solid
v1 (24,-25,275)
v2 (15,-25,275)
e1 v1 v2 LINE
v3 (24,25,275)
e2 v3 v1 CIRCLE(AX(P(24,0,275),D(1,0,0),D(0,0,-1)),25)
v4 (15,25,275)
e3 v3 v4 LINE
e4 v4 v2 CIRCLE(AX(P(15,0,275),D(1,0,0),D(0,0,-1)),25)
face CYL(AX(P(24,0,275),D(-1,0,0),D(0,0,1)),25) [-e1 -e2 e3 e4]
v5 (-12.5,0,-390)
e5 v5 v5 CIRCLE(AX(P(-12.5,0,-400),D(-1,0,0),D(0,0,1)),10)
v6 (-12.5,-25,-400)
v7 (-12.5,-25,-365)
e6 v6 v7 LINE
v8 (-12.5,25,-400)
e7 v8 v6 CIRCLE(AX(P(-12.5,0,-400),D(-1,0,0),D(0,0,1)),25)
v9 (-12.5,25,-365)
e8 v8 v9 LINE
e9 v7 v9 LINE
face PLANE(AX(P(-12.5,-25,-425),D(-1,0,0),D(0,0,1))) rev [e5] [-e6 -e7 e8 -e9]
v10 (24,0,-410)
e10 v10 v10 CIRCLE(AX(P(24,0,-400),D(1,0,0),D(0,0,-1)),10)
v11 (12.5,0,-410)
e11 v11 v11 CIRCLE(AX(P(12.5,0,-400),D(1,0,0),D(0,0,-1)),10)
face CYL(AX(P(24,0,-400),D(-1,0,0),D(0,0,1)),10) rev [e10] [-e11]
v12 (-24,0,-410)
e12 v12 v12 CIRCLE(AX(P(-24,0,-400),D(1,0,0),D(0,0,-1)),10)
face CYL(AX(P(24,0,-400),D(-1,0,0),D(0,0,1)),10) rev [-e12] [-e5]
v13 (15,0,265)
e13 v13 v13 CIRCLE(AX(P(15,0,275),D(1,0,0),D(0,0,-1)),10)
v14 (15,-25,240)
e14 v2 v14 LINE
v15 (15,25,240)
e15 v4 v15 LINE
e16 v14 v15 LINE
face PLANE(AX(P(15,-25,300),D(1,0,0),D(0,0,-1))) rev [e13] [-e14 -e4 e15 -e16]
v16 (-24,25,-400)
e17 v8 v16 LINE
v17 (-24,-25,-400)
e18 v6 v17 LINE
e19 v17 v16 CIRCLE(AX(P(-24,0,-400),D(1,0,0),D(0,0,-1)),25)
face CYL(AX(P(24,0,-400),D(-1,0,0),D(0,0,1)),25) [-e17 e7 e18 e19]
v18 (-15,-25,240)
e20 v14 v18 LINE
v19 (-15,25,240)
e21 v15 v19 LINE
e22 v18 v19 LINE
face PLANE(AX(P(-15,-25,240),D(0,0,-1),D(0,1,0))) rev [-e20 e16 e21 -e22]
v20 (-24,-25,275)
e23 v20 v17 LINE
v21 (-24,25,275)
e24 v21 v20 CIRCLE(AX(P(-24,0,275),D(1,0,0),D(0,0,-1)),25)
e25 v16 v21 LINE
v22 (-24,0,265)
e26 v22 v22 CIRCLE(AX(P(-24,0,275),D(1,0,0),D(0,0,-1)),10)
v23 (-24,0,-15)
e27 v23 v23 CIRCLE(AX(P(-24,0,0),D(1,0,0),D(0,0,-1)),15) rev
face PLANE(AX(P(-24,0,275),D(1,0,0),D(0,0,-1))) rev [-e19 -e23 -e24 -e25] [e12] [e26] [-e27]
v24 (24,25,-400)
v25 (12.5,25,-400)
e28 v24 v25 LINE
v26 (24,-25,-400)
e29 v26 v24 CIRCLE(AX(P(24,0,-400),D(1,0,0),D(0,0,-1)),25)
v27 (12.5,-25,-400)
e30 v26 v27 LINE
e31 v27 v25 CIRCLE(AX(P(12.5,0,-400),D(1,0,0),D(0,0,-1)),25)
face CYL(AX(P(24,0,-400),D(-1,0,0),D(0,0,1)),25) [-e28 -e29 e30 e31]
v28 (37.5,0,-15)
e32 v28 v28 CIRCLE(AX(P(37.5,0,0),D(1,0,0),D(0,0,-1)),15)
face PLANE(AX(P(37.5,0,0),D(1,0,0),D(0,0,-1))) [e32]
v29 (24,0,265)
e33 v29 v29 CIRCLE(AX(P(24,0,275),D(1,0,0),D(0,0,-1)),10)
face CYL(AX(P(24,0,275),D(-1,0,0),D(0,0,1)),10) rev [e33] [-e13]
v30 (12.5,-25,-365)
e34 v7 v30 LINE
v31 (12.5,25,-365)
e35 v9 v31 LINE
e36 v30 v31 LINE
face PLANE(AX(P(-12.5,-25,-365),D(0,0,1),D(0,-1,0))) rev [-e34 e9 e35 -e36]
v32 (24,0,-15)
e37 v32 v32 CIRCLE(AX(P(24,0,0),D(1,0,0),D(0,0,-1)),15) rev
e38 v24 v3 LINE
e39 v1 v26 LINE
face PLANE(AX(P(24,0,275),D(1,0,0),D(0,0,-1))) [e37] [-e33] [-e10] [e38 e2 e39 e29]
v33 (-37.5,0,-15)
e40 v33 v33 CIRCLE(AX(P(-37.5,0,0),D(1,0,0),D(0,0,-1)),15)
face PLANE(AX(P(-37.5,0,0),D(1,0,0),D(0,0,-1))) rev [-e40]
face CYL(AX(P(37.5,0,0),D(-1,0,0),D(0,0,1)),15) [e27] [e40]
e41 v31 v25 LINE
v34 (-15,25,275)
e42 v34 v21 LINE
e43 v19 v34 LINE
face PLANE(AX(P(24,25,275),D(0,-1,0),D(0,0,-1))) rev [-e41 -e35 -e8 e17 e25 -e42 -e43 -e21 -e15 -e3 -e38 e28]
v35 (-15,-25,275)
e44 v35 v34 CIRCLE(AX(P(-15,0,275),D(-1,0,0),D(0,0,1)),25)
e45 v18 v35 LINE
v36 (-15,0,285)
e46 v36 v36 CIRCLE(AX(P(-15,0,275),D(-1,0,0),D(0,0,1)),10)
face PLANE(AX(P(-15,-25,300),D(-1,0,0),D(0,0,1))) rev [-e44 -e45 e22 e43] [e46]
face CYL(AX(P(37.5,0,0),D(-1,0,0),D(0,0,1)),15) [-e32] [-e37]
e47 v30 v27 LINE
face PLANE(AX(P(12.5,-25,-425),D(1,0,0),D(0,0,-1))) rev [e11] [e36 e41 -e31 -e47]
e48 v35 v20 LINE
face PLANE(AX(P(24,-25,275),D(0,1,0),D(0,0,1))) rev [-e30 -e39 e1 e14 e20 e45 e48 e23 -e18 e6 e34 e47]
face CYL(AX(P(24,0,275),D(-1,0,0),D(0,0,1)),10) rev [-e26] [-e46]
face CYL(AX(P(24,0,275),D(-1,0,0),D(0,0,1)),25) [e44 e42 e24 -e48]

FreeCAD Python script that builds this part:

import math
import FreeCAD as App
import Part
import Sketcher
from FreeCAD import Vector

doc = App.newDocument("Part")
body = doc.addObject("PartDesign::Body", "Body")

# Sketch on YZ plane
sketch1 = body.newObject("Sketcher::SketchObject", "Sketch")
sketch1.AttachmentSupport = (doc.getObject("YZ_Plane"), [""])
sketch1.MapMode = "FlatFace"
sketch1.addGeometry(Part.LineSegment(Vector(25, -400, 0), Vector(25, 275, 0)), False)
sketch1.addGeometry(Part.ArcOfCircle(Part.Circle(Vector(0, 275, 0), Vector(0, 0, 1), 25), math.radians(0), math.radians(180)), False)
sketch1.addGeometry(Part.LineSegment(Vector(-25, 275, 0), Vector(-25, -400, 0)), False)
sketch1.addGeometry(Part.ArcOfCircle(Part.Circle(Vector(0, -400, 0), Vector(0, 0, 1), 25), math.radians(180), math.radians(360)), False)
sketch1.addGeometry(Part.Circle(Vector(0, -400, 0), Vector(0, 0, 1), 10), False)
sketch1.addGeometry(Part.Circle(Vector(0, 275, 0), Vector(0, 0, 1), 10), False)
sketch1.addConstraint(Sketcher.Constraint("Tangent", 0, 2, 1, 1))
sketch1.addConstraint(Sketcher.Constraint("Tangent", 1, 2, 2, 1))
sketch1.addConstraint(Sketcher.Constraint("Tangent", 2, 2, 3, 1))
sketch1.addConstraint(Sketcher.Constraint("Tangent", 3, 2, 0, 1))
sketch1.addConstraint(Sketcher.Constraint("Vertical", 0))
sketch1.addConstraint(Sketcher.Constraint("Vertical", 2))
sketch1.addConstraint(Sketcher.Constraint("Coincident", 4, 3, 3, 3))
sketch1.addConstraint(Sketcher.Constraint("Coincident", 5, 3, 1, 3))
sketch1.addConstraint(Sketcher.Constraint("Equal", 4, 5))
sketch1.addConstraint(Sketcher.Constraint("PointOnObject", 1, 3, -2))
sketch1.addConstraint(Sketcher.Constraint("Diameter", 4, 20.0))
sketch1.addConstraint(Sketcher.Constraint("Radius", 1, 25.0))
sketch1.addConstraint(Sketcher.Constraint("DistanceY", 0, 1, 0, 2, 675.0))
sketch1.addConstraint(Sketcher.Constraint("DistanceY", -1, 1, 1, 3, 275.0))
pad1 = body.newObject("PartDesign::Pad", "Pad")
pad1.Profile = sketch1
pad1.Length = 48
pad1.Midplane = True

# Sketch on XZ plane
sketch2 = body.newObject("Sketcher::SketchObject", "Sketch001")
sketch2.AttachmentSupport = (doc.getObject("XZ_Plane"), [""])
sketch2.MapMode = "FlatFace"
sketch2.AttachmentOffset = App.Placement(Vector(0, 0, -25), App.Rotation())
sketch2.addGeometry(Part.LineSegment(Vector(-12.5, -425, 0), Vector(-12.5, -365, 0)), False)
sketch2.addGeometry(Part.LineSegment(Vector(-12.5, -365, 0), Vector(12.5, -365, 0)), False)
sketch2.addGeometry(Part.LineSegment(Vector(12.5, -365, 0), Vector(12.5, -425, 0)), False)
sketch2.addGeometry(Part.LineSegment(Vector(12.5, -425, 0), Vector(-12.5, -425, 0)), False)
sketch2.addGeometry(Part.LineSegment(Vector(-15, 240, 0), Vector(-15, 300, 0)), False)
sketch2.addGeometry(Part.LineSegment(Vector(-15, 300, 0), Vector(15, 300, 0)), False)
sketch2.addGeometry(Part.LineSegment(Vector(15, 300, 0), Vector(15, 240, 0)), False)
sketch2.addGeometry(Part.LineSegment(Vector(15, 240, 0), Vector(-15, 240, 0)), False)
sketch2.addConstraint(Sketcher.Constraint("Coincident", 0, 2, 1, 1))
sketch2.addConstraint(Sketcher.Constraint("Coincident", 1, 2, 2, 1))
sketch2.addConstraint(Sketcher.Constraint("Coincident", 2, 2, 3, 1))
sketch2.addConstraint(Sketcher.Constraint("Coincident", 3, 2, 0, 1))
sketch2.addConstraint(Sketcher.Constraint("Coincident", 4, 2, 5, 1))
sketch2.addConstraint(Sketcher.Constraint("Coincident", 5, 2, 6, 1))
sketch2.addConstraint(Sketcher.Constraint("Coincident", 6, 2, 7, 1))
sketch2.addConstraint(Sketcher.Constraint("Coincident", 7, 2, 4, 1))
sketch2.addConstraint(Sketcher.Constraint("Vertical", 0))
sketch2.addConstraint(Sketcher.Constraint("Horizontal", 1))
sketch2.addConstraint(Sketcher.Constraint("Vertical", 2))
sketch2.addConstraint(Sketcher.Constraint("Horizontal", 3))
sketch2.addConstraint(Sketcher.Constraint("Vertical", 4))
sketch2.addConstraint(Sketcher.Constraint("Horizontal", 5))
sketch2.addConstraint(Sketcher.Constraint("Vertical", 6))
sketch2.addConstraint(Sketcher.Constraint("Horizontal", 7))
sketch2.addConstraint(Sketcher.Constraint("Equal", 2, 4))
sketch2.addConstraint(Sketcher.Constraint("DistanceX", 1, 1, 1, 2, 25.0))
sketch2.addConstraint(Sketcher.Constraint("DistanceX", 5, 1, 5, 2, 30.0))
sketch2.addConstraint(Sketcher.Constraint("DistanceY", 0, 1, 0, 2, 60.0))
sketch2.addConstraint(Sketcher.Constraint("DistanceY", 0, 2, -1, 1, 365.0))
sketch2.addConstraint(Sketcher.Constraint("DistanceX", 4, 2, -1, 1, 15.0))
sketch2.addConstraint(Sketcher.Constraint("DistanceY", -1, 1, 4, 2, 300.0))
sketch2.addConstraint(Sketcher.Constraint("DistanceX", 0, 2, -1, 1, 12.5))
pocket1 = body.newObject("PartDesign::Pocket", "Pocket")
pocket1.Profile = sketch2
pocket1.Type = "ThroughAll"
pocket1.Reversed = True

# Sketch on YZ plane
sketch3 = body.newObject("Sketcher::SketchObject", "Sketch002")
sketch3.AttachmentSupport = (doc.getObject("YZ_Plane"), [""])
sketch3.MapMode = "FlatFace"
sketch3.addGeometry(Part.Circle(Vector(0, 0, 0), Vector(0, 0, 1), 15), False)
sketch3.addConstraint(Sketcher.Constraint("Coincident", 0, 3, -1, 1))
sketch3.addConstraint(Sketcher.Constraint("Diameter", 0, 30.0))
pad2 = body.newObject("PartDesign::Pad", "Pad001")
pad2.Profile = sketch3
pad2.Length = 75
pad2.Midplane = True

doc.recompute()
